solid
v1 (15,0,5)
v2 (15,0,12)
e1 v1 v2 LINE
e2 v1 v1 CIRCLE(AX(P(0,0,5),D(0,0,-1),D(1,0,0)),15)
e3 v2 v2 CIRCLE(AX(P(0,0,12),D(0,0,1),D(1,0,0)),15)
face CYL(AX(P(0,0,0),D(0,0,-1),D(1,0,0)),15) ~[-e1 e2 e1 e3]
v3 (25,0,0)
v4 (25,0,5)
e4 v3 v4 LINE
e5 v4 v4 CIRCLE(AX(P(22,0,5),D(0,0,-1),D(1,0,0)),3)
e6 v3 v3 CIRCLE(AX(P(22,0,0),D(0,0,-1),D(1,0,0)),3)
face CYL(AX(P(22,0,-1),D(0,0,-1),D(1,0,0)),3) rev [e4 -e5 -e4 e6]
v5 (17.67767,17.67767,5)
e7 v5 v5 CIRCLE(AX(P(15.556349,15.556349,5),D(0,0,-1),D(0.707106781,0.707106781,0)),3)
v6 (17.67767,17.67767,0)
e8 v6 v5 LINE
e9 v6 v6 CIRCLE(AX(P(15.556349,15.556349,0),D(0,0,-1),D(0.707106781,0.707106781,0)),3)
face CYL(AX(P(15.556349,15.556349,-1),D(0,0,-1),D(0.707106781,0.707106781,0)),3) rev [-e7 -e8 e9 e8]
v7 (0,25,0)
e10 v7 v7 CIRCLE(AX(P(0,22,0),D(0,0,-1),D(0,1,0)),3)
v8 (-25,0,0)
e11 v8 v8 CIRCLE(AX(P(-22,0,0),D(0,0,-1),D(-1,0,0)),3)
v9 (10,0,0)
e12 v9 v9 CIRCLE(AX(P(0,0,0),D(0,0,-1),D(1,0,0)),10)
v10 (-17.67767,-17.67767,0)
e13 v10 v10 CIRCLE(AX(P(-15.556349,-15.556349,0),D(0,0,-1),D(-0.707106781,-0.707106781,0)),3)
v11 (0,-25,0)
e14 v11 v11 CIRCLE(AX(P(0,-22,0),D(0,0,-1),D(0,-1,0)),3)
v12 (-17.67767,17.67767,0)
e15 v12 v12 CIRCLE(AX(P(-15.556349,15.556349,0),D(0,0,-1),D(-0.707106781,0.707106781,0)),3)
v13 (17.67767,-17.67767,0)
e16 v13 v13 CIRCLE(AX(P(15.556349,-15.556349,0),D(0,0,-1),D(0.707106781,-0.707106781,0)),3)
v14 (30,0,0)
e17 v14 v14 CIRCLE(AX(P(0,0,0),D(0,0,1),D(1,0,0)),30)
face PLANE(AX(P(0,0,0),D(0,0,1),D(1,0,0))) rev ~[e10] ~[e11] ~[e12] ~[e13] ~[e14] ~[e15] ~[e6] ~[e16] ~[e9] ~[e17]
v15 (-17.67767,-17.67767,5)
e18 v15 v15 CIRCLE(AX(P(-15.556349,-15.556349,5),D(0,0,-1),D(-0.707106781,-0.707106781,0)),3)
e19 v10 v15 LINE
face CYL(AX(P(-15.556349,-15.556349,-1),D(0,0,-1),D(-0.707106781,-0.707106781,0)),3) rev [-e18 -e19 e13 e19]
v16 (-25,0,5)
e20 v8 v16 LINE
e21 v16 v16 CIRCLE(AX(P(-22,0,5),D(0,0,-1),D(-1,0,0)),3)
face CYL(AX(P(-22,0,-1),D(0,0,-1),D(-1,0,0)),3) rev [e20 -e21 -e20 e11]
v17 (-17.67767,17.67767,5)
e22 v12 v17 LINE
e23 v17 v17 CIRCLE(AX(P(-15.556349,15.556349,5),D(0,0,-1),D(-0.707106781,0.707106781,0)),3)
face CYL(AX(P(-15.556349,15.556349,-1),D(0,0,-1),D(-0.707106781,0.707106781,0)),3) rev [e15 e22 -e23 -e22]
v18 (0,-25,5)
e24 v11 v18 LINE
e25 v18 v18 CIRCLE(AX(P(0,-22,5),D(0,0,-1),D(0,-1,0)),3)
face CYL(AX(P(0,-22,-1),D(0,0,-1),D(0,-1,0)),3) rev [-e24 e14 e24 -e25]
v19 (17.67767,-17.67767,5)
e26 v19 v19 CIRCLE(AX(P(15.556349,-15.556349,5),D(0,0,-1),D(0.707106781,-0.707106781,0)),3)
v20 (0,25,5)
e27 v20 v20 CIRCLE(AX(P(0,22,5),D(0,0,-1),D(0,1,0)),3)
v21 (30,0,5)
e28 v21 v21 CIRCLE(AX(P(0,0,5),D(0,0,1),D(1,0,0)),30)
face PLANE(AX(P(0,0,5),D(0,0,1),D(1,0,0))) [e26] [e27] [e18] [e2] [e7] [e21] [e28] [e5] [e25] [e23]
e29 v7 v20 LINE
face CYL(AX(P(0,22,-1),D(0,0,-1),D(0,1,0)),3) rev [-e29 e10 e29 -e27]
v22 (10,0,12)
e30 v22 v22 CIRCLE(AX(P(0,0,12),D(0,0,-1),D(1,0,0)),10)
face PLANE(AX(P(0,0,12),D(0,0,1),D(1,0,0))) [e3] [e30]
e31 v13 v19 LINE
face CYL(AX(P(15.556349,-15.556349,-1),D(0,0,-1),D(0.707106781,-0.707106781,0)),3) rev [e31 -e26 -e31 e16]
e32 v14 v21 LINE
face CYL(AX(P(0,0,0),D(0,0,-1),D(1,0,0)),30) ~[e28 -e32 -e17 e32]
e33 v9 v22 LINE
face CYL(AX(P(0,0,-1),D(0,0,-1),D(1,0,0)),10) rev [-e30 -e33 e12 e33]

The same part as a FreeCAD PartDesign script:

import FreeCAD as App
import Part
import Sketcher

V = App.Vector
Q = App.Units.Quantity

doc = App.newDocument("Part")
body = doc.addObject("PartDesign::Body", "Body")

# Sketch on XY plane
sketch1 = body.newObject("Sketcher::SketchObject", "Sketch")
sketch1.AttachmentSupport = (doc.getObject("XY_Plane"), [""])
sketch1.MapMode = "FlatFace"
sketch1.AttachmentOffset = App.Placement(V(0, 0, -1), App.Rotation())
sketch1.addGeometry(Part.Circle(V(22, 0, 0), V(0, 0, 1), 3), False)
sketch1.addConstraint([
    Sketcher.Constraint("PointOnObject", 0, 3, -1),
    Sketcher.Constraint("Diameter", 0, Q("6 mm")),
    Sketcher.Constraint("DistanceX", -1, 1, 0, 3, Q("22 mm")),
])
pad1 = body.newObject("PartDesign::Pad", "Pad")
pad1.Profile = sketch1
pad1.Length = 10
body2 = doc.addObject("PartDesign::Body", "Body001")
body2.AllowCompound = True
doc.recompute()

body2.BaseFeature = body
doc.recompute()

body3 = doc.addObject("PartDesign::Body", "Body002")
body3.BaseFeature = body
body3.Placement = App.Placement(V(0, 0, 0), App.Rotation(V(0, 0, 1), 45))
boolean = body2.newObject("PartDesign::Boolean", "Boolean")
boolean.Type = "Fuse"
boolean.addObjects([body3])
doc.recompute()

body4 = doc.addObject("PartDesign::Body", "Body003")
body4.BaseFeature = body
body4.Placement = App.Placement(V(0, 0, 0), App.Rotation(V(0, 0, 1), 90))
boolean2 = body2.newObject("PartDesign::Boolean", "Boolean001")
boolean2.Type = "Fuse"
boolean2.addObjects([body4])
doc.recompute()

body5 = doc.addObject("PartDesign::Body", "Body004")
body5.BaseFeature = body
body5.Placement = App.Placement(V(0, 0, 0), App.Rotation(V(0, 0, 1), 135))
boolean3 = body2.newObject("PartDesign::Boolean", "Boolean002")
boolean3.Type = "Fuse"
boolean3.addObjects([body5])
doc.recompute()

body6 = doc.addObject("PartDesign::Body", "Body005")
body6.BaseFeature = body
body6.Placement = App.Placement(V(0, 0, 0), App.Rotation(V(0, 0, 1), 180))
boolean4 = body2.newObject("PartDesign::Boolean", "Boolean003")
boolean4.Type = "Fuse"
boolean4.addObjects([body6])
doc.recompute()

body7 = doc.addObject("PartDesign::Body", "Body006")
body7.BaseFeature = body
body7.Placement = App.Placement(V(0, 0, 0), App.Rotation(V(0, 0, 1), 225))
boolean5 = body2.newObject("PartDesign::Boolean", "Boolean004")
boolean5.Type = "Fuse"
boolean5.addObjects([body7])
doc.recompute()

body8 = doc.addObject("PartDesign::Body", "Body007")
body8.BaseFeature = body
body8.Placement = App.Placement(V(0, 0, 0), App.Rotation(V(0, 0, 1), 270))
boolean6 = body2.newObject("PartDesign::Boolean", "Boolean005")
boolean6.Type = "Fuse"
boolean6.addObjects([body8])
doc.recompute()

body.Placement = App.Placement(V(0, 0, 0), App.Rotation(V(0, 0, 1), 315))
boolean7 = body2.newObject("PartDesign::Boolean", "Boolean006")
boolean7.Type = "Fuse"
boolean7.addObjects([body])
body9 = doc.addObject("PartDesign::Body", "Body008")

# Sketch on XY plane
sketch2 = body9.newObject("Sketcher::SketchObject", "Sketch001")
sketch2.AttachmentSupport = (doc.getObject("XY_Plane008"), [""])
sketch2.MapMode = "FlatFace"
sketch2.AttachmentOffset = App.Placement(V(0, 0, -1), App.Rotation())
sketch2.addGeometry(Part.Circle(V(0, 0, 0), V(0, 0, 1), 10), False)
sketch2.addConstraint([
    Sketcher.Constraint("Coincident", 0, 3, -1, 1),
    Sketcher.Constraint("Diameter", 0, Q("20 mm")),
])
pad2 = body9.newObject("PartDesign::Pad", "Pad001")
pad2.Profile = sketch2
pad2.Length = 30
body10 = doc.addObject("PartDesign::Body", "Body009")

# Sketch on XY plane
sketch3 = body10.newObject("Sketcher::SketchObject", "Sketch002")
sketch3.AttachmentSupport = (doc.getObject("XY_Plane009"), [""])
sketch3.MapMode = "FlatFace"
sketch3.addGeometry(Part.Circle(V(0, 0, 0), V(0, 0, 1), 30), False)
sketch3.addConstraint([
    Sketcher.Constraint("Coincident", 0, 3, -1, 1),
    Sketcher.Constraint("Diameter", 0, Q("60 mm")),
])
pad3 = body10.newObject("PartDesign::Pad", "Pad002")
pad3.Profile = sketch3
pad3.Length = 5
body11 = doc.addObject("PartDesign::Body", "Body010")

# Sketch on XY plane
sketch4 = body11.newObject("Sketcher::SketchObject", "Sketch003")
sketch4.AttachmentSupport = (doc.getObject("XY_Plane010"), [""])
sketch4.MapMode = "FlatFace"
sketch4.addGeometry(Part.Circle(V(0, 0, 0), V(0, 0, 1), 15), False)
sketch4.addConstraint([
    Sketcher.Constraint("Coincident", 0, 3, -1, 1),
    Sketcher.Constraint("Diameter", 0, Q("30 mm")),
])
pad4 = body11.newObject("PartDesign::Pad", "Pad003")
pad4.Profile = sketch4
pad4.Length = 12
doc.recompute()

boolean8 = body11.newObject("PartDesign::Boolean", "Boolean007")
boolean8.Type = "Fuse"
boolean8.addObjects([body10])
doc.recompute()

boolean9 = body11.newObject("PartDesign::Boolean", "Boolean008")
boolean9.Type = "Cut"
boolean9.addObjects([body9])
doc.recompute()

boolean10 = body11.newObject("PartDesign::Boolean", "Boolean009")
boolean10.Type = "Cut"
boolean10.addObjects([body2])

doc.recompute()
